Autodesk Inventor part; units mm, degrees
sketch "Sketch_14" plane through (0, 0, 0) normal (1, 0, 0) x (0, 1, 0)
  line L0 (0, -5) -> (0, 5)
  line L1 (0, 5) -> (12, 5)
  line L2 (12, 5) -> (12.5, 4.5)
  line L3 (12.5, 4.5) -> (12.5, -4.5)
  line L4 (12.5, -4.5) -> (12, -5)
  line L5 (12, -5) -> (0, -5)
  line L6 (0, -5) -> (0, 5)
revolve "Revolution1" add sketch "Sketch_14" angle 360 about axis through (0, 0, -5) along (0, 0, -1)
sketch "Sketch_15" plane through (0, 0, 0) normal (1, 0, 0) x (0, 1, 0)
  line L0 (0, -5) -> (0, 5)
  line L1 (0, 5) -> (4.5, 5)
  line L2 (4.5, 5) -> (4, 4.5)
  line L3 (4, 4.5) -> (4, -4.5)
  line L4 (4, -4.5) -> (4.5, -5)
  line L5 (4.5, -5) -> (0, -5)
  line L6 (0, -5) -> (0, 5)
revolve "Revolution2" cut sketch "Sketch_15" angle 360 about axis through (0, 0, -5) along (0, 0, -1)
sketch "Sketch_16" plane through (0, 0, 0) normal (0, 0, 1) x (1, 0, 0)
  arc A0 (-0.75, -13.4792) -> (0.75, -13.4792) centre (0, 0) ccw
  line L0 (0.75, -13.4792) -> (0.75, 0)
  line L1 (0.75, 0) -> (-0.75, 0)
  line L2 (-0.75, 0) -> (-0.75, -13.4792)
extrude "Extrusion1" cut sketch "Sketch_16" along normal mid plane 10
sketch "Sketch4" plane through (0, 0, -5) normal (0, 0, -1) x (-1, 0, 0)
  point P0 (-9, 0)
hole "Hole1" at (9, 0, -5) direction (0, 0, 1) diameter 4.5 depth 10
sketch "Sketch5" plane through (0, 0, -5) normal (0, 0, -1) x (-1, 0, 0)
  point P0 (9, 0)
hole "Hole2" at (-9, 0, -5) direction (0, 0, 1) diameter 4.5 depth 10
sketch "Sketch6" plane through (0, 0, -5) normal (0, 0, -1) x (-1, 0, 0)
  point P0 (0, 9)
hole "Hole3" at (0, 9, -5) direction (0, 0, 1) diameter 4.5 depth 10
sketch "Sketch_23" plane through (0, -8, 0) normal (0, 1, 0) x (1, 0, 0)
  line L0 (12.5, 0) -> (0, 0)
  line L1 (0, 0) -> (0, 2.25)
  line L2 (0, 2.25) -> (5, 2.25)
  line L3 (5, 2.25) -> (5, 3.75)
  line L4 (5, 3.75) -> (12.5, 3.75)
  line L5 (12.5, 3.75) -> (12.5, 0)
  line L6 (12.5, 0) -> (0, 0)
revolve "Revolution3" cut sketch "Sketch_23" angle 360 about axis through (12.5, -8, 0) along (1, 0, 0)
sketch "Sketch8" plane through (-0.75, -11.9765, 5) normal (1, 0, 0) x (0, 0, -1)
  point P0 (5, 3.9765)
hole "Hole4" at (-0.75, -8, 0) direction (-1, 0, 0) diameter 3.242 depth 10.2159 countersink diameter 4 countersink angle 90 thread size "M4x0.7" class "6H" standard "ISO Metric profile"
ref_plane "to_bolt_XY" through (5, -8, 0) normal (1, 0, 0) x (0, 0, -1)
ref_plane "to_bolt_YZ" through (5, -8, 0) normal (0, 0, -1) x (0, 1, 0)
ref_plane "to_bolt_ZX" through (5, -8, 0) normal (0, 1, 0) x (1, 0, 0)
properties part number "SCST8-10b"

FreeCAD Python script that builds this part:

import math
import FreeCAD as App
import Part
import Sketcher
from FreeCAD import Vector

doc = App.newDocument("Part")
params = doc.addObject("Spreadsheet::Sheet", "Params")
for row, (alias, value) in enumerate([
    ("sketch1_width", "12 mm"),
    ("sketch1_height", "10 mm"),
    ("sketch1_height2", "9 mm"),
    ("revolution_angle", "360 deg"),
    ("sketch2_height", "10 mm"),
    ("sketch2_height2", "9 mm"),
    ("sketch2_width", "4.5 mm"),
    ("groove_angle", "360 deg"),
    ("sketch3_radius", "13.5 mm"),
    ("sketch3_width", "1.5 mm"),
    ("pocket1_length", "10 mm"),
    ("sketch4_diameter", "4.5 mm"),
    ("hole_diameter", "4.5 mm"),
    ("hole_depth", "10 mm"),
    ("sketch5_diameter", "4.5 mm"),
    ("hole2_diameter", "4.5 mm"),
    ("hole2_depth", "10 mm"),
    ("sketch6_diameter", "4.5 mm"),
    ("hole3_diameter", "4.5 mm"),
    ("hole3_depth", "10 mm"),
    ("sketch7_width", "5 mm"),
    ("sketch7_width2", "12.5 mm"),
    ("sketch7_height", "1.5 mm"),
    ("sketch7_height2", "3.75 mm"),
    ("groove2_angle", "360 deg"),
    ("hole4_diameter", "3.242 mm"),
    ("hole4_depth", "10.2159 mm"),
    ("hole4_csink_diameter", "4 mm"),
], start=1):
    params.set(f"A{row}", alias)
    params.set(f"B{row}", "=" + value)
    params.setAlias(f"B{row}", alias)

body = doc.addObject("PartDesign::Body", "Body")

# Sketch on YZ plane
sketch1 = body.newObject("Sketcher::SketchObject", "Sketch")
sketch1.AttachmentSupport = (doc.getObject("YZ_Plane"), [""])
sketch1.MapMode = "FlatFace"
sketch1.addGeometry(Part.LineSegment(Vector(0, 5, 0), Vector(0, -5, 0)), False)
sketch1.addGeometry(Part.LineSegment(Vector(0, -5, 0), Vector(12, -5, 0)), False)
sketch1.addGeometry(Part.LineSegment(Vector(12, -5, 0), Vector(12.5, -4.5, 0)), False)
sketch1.addGeometry(Part.LineSegment(Vector(12.5, -4.5, 0), Vector(12.5, 4.5, 0)), False)
sketch1.addGeometry(Part.LineSegment(Vector(12.5, 4.5, 0), Vector(12, 5, 0)), False)
sketch1.addGeometry(Part.LineSegment(Vector(12, 5, 0), Vector(0, 5, 0)), False)
sketch1.addConstraint(Sketcher.Constraint("Coincident", 0, 2, 1, 1))
sketch1.addConstraint(Sketcher.Constraint("Coincident", 1, 2, 2, 1))
sketch1.addConstraint(Sketcher.Constraint("Coincident", 2, 2, 3, 1))
sketch1.addConstraint(Sketcher.Constraint("Coincident", 3, 2, 4, 1))
sketch1.addConstraint(Sketcher.Constraint("Coincident", 4, 2, 5, 1))
sketch1.addConstraint(Sketcher.Constraint("Coincident", 5, 2, 0, 1))
sketch1.addConstraint(Sketcher.Constraint("Vertical", 0))
sketch1.addConstraint(Sketcher.Constraint("Horizontal", 1))
sketch1.addConstraint(Sketcher.Constraint("Vertical", 3))
sketch1.addConstraint(Sketcher.Constraint("Horizontal", 5))
sketch1.addConstraint(Sketcher.Constraint("Symmetric", 0, 2, 5, 2, -1, 1))
sketch1.addConstraint(Sketcher.Constraint("Perpendicular", 2, 4))
sketch1.addConstraint(Sketcher.Constraint("Vertical", 1, 2, 4, 2))
sketch1.addConstraint(Sketcher.Constraint("Equal", 2, 4))
sketch1.addConstraint(Sketcher.Constraint("DistanceX", 1, 1, 1, 2, 12.0))
sketch1.addConstraint(Sketcher.Constraint("DistanceY", 0, 2, 0, 1, 10.0))
sketch1.addConstraint(Sketcher.Constraint("DistanceY", 3, 1, 3, 2, 9.0))
sketch1.setExpression("Constraints[14]", "Params.sketch1_width")
sketch1.setExpression("Constraints[15]", "Params.sketch1_height")
sketch1.setExpression("Constraints[16]", "Params.sketch1_height2")
revolution = body.newObject("PartDesign::Revolution", "Revolution")
revolution.Profile = sketch1
revolution.ReferenceAxis = (sketch1, ["V_Axis"])
revolution.setExpression("Angle", "Params.revolution_angle")

# Sketch on YZ plane
sketch2 = body.newObject("Sketcher::SketchObject", "Sketch001")
sketch2.AttachmentSupport = (doc.getObject("YZ_Plane"), [""])
sketch2.MapMode = "FlatFace"
sketch2.addGeometry(Part.LineSegment(Vector(0, 5, 0), Vector(0, -5, 0)), False)
sketch2.addGeometry(Part.LineSegment(Vector(0, -5, 0), Vector(4.5, -5, 0)), False)
sketch2.addGeometry(Part.LineSegment(Vector(4.5, -5, 0), Vector(4, -4.5, 0)), False)
sketch2.addGeometry(Part.LineSegment(Vector(4, -4.5, 0), Vector(4, 4.5, 0)), False)
sketch2.addGeometry(Part.LineSegment(Vector(4, 4.5, 0), Vector(4.5, 5, 0)), False)
sketch2.addGeometry(Part.LineSegment(Vector(4.5, 5, 0), Vector(0, 5, 0)), False)
sketch2.addConstraint(Sketcher.Constraint("Coincident", 0, 2, 1, 1))
sketch2.addConstraint(Sketcher.Constraint("Coincident", 1, 2, 2, 1))
sketch2.addConstraint(Sketcher.Constraint("Coincident", 2, 2, 3, 1))
sketch2.addConstraint(Sketcher.Constraint("Coincident", 3, 2, 4, 1))
sketch2.addConstraint(Sketcher.Constraint("Coincident", 4, 2, 5, 1))
sketch2.addConstraint(Sketcher.Constraint("Coincident", 5, 2, 0, 1))
sketch2.addConstraint(Sketcher.Constraint("Vertical", 0))
sketch2.addConstraint(Sketcher.Constraint("Horizontal", 1))
sketch2.addConstraint(Sketcher.Constraint("Vertical", 3))
sketch2.addConstraint(Sketcher.Constraint("Horizontal", 5))
sketch2.addConstraint(Sketcher.Constraint("Symmetric", 0, 2, 5, 2, -1, 1))
sketch2.addConstraint(Sketcher.Constraint("Perpendicular", 2, 4))
sketch2.addConstraint(Sketcher.Constraint("Vertical", 1, 2, 4, 2))
sketch2.addConstraint(Sketcher.Constraint("Equal", 2, 4))
sketch2.addConstraint(Sketcher.Constraint("DistanceY", 0, 2, 0, 1, 10.0))
sketch2.addConstraint(Sketcher.Constraint("DistanceY", 3, 1, 3, 2, 9.0))
sketch2.addConstraint(Sketcher.Constraint("DistanceX", 1, 1, 1, 2, 4.5))
sketch2.setExpression("Constraints[14]", "Params.sketch2_height")
sketch2.setExpression("Constraints[15]", "Params.sketch2_height2")
sketch2.setExpression("Constraints[16]", "Params.sketch2_width")
groove = body.newObject("PartDesign::Groove", "Groove")
groove.Profile = sketch2
groove.ReferenceAxis = (sketch2, ["V_Axis"])
groove.setExpression("Angle", "Params.groove_angle")

# Sketch on XY plane
sketch3 = body.newObject("Sketcher::SketchObject", "Sketch002")
sketch3.AttachmentSupport = (doc.getObject("XY_Plane"), [""])
sketch3.MapMode = "FlatFace"
sketch3.addGeometry(Part.LineSegment(Vector(-0.8, 0, 0), Vector(-0.8, -13.5, 0)), False)
sketch3.addGeometry(Part.ArcOfCircle(Part.Circle(Vector(0, 0, 0), Vector(0, 0, 1), 13.5), math.radians(-93.18), math.radians(-86.82)), False)
sketch3.addGeometry(Part.LineSegment(Vector(0.8, -13.5, 0), Vector(0.8, 0, 0)), False)
sketch3.addGeometry(Part.LineSegment(Vector(0.8, 0, 0), Vector(-0.8, 0, 0)), False)
sketch3.addConstraint(Sketcher.Constraint("Coincident", 0, 2, 1, 1))
sketch3.addConstraint(Sketcher.Constraint("Coincident", 1, 2, 2, 1))
sketch3.addConstraint(Sketcher.Constraint("Coincident", 2, 2, 3, 1))
sketch3.addConstraint(Sketcher.Constraint("Coincident", 3, 2, 0, 1))
sketch3.addConstraint(Sketcher.Constraint("Vertical", 0))
sketch3.addConstraint(Sketcher.Constraint("Vertical", 2))
sketch3.addConstraint(Sketcher.Constraint("Horizontal", 3))
sketch3.addConstraint(Sketcher.Constraint("Coincident", 1, 3, -1, 1))
sketch3.addConstraint(Sketcher.Constraint("Symmetric", 2, 2, 3, 2, -1, 1))
sketch3.addConstraint(Sketcher.Constraint("Radius", 1, 13.5))
sketch3.addConstraint(Sketcher.Constraint("DistanceX", 3, 2, 3, 1, 1.5))
sketch3.setExpression("Constraints[9]", "Params.sketch3_radius")
sketch3.setExpression("Constraints[10]", "Params.sketch3_width")
pocket1 = body.newObject("PartDesign::Pocket", "Pocket")
pocket1.Profile = sketch3
pocket1.setExpression("Length", "Params.pocket1_length")
pocket1.Midplane = True

# Sketch on XY plane
sketch4 = body.newObject("Sketcher::SketchObject", "Sketch003")
sketch4.AttachmentSupport = (doc.getObject("XY_Plane"), [""])
sketch4.MapMode = "FlatFace"
sketch4.AttachmentOffset = App.Placement(Vector(0, 0, -5), App.Rotation())
sketch4.addGeometry(Part.Circle(Vector(9, 0, 0), Vector(0, 0, 1), 2.2), False)
sketch4.addConstraint(Sketcher.Constraint("PointOnObject", 0, 3, -1))
sketch4.addConstraint(Sketcher.Constraint("Diameter", 0, 4.5))
sketch4.addConstraint(Sketcher.Constraint("DistanceX", -1, 1, 0, 3, 9.0))
sketch4.setExpression("Constraints[1]", "Params.sketch4_diameter")
doc.recompute()
hole = body.newObject("PartDesign::Hole", "Hole")
hole.Profile = sketch4
hole.ThreadType = "None"
hole.setExpression("Diameter", "Params.hole_diameter")
hole.DepthType = "Dimension"
hole.setExpression("Depth", "Params.hole_depth")
hole.DrillPoint = "Flat"
hole.Reversed = True

# Sketch on XY plane
sketch5 = body.newObject("Sketcher::SketchObject", "Sketch004")
sketch5.AttachmentSupport = (doc.getObject("XY_Plane"), [""])
sketch5.MapMode = "FlatFace"
sketch5.AttachmentOffset = App.Placement(Vector(0, 0, -5), App.Rotation())
sketch5.addGeometry(Part.Circle(Vector(-9, 0, 0), Vector(0, 0, 1), 2.2), False)
sketch5.addConstraint(Sketcher.Constraint("PointOnObject", 0, 3, -1))
sketch5.addConstraint(Sketcher.Constraint("Diameter", 0, 4.5))
sketch5.addConstraint(Sketcher.Constraint("DistanceX", 0, 3, -1, 1, 9.0))
sketch5.setExpression("Constraints[1]", "Params.sketch5_diameter")
doc.recompute()
hole2 = body.newObject("PartDesign::Hole", "Hole001")
hole2.Profile = sketch5
hole2.ThreadType = "None"
hole2.setExpression("Diameter", "Params.hole2_diameter")
hole2.DepthType = "Dimension"
hole2.setExpression("Depth", "Params.hole2_depth")
hole2.DrillPoint = "Flat"
hole2.Reversed = True

# Sketch on XY plane
sketch6 = body.newObject("Sketcher::SketchObject", "Sketch005")
sketch6.AttachmentSupport = (doc.getObject("XY_Plane"), [""])
sketch6.MapMode = "FlatFace"
sketch6.AttachmentOffset = App.Placement(Vector(0, 0, -5), App.Rotation())
sketch6.addGeometry(Part.Circle(Vector(0, 9, 0), Vector(0, 0, 1), 2.2), False)
sketch6.addConstraint(Sketcher.Constraint("PointOnObject", 0, 3, -2))
sketch6.addConstraint(Sketcher.Constraint("Diameter", 0, 4.5))
sketch6.addConstraint(Sketcher.Constraint("DistanceY", -1, 1, 0, 3, 9.0))
sketch6.setExpression("Constraints[1]", "Params.sketch6_diameter")
doc.recompute()
hole3 = body.newObject("PartDesign::Hole", "Hole002")
hole3.Profile = sketch6
hole3.ThreadType = "None"
hole3.setExpression("Diameter", "Params.hole3_diameter")
hole3.DepthType = "Dimension"
hole3.setExpression("Depth", "Params.hole3_depth")
hole3.DrillPoint = "Flat"
hole3.Reversed = True

# Sketch on XZ plane
sketch7 = body.newObject("Sketcher::SketchObject", "Sketch006")
sketch7.AttachmentSupport = (doc.getObject("XZ_Plane"), [""])
sketch7.MapMode = "FlatFace"
sketch7.AttachmentOffset = App.Placement(Vector(0, 0, 8), App.Rotation())
sketch7.addGeometry(Part.LineSegment(Vector(0, 0, 0), Vector(12.5, 0, 0)), False)
sketch7.addGeometry(Part.LineSegment(Vector(12.5, 0, 0), Vector(12.5, -3.8, 0)), False)
sketch7.addGeometry(Part.LineSegment(Vector(12.5, -3.8, 0), Vector(5, -3.8, 0)), False)
sketch7.addGeometry(Part.LineSegment(Vector(5, -3.8, 0), Vector(5, -2.2, 0)), False)
sketch7.addGeometry(Part.LineSegment(Vector(5, -2.2, 0), Vector(0, -2.2, 0)), False)
sketch7.addGeometry(Part.LineSegment(Vector(0, -2.2, 0), Vector(0, 0, 0)), False)
sketch7.addConstraint(Sketcher.Constraint("Coincident", 0, 2, 1, 1))
sketch7.addConstraint(Sketcher.Constraint("Coincident", 1, 2, 2, 1))
sketch7.addConstraint(Sketcher.Constraint("Coincident", 2, 2, 3, 1))
sketch7.addConstraint(Sketcher.Constraint("Coincident", 3, 2, 4, 1))
sketch7.addConstraint(Sketcher.Constraint("Coincident", 4, 2, 5, 1))
sketch7.addConstraint(Sketcher.Constraint("Coincident", 5, 2, 0, 1))
sketch7.addConstraint(Sketcher.Constraint("Horizontal", 0))
sketch7.addConstraint(Sketcher.Constraint("Vertical", 1))
sketch7.addConstraint(Sketcher.Constraint("Horizontal", 2))
sketch7.addConstraint(Sketcher.Constraint("Vertical", 3))
sketch7.addConstraint(Sketcher.Constraint("Horizontal", 4))
sketch7.addConstraint(Sketcher.Constraint("Vertical", 5))
sketch7.addConstraint(Sketcher.Constraint("Coincident", 5, 2, -1, 1))
sketch7.addConstraint(Sketcher.Constraint("DistanceX", 4, 2, 4, 1, 5.0))
sketch7.addConstraint(Sketcher.Constraint("DistanceX", 0, 1, 0, 2, 12.5))
sketch7.addConstraint(Sketcher.Constraint("DistanceY", 3, 1, 3, 2, 1.5))
sketch7.addConstraint(Sketcher.Constraint("DistanceY", 1, 2, 1, 1, 3.75))
sketch7.setExpression("Constraints[13]", "Params.sketch7_width")
sketch7.setExpression("Constraints[14]", "Params.sketch7_width2")
sketch7.setExpression("Constraints[15]", "Params.sketch7_height")
sketch7.setExpression("Constraints[16]", "Params.sketch7_height2")
groove2 = body.newObject("PartDesign::Groove", "Groove001")
groove2.Profile = sketch7
groove2.ReferenceAxis = (sketch7, ["H_Axis"])
groove2.setExpression("Angle", "Params.groove2_angle")

# Sketch on YZ plane
sketch8 = body.newObject("Sketcher::SketchObject", "Sketch007")
sketch8.AttachmentSupport = (doc.getObject("YZ_Plane"), [""])
sketch8.MapMode = "FlatFace"
sketch8.AttachmentOffset = App.Placement(Vector(0, 0, -0.75), App.Rotation())
sketch8.addGeometry(Part.Circle(Vector(-8, 0, 0), Vector(0, 0, 1), 1.6), False)
sketch8.addConstraint(Sketcher.Constraint("PointOnObject", 0, 3, -1))
sketch8.addConstraint(Sketcher.Constraint("Diameter", 0, 3.242))
sketch8.addConstraint(Sketcher.Constraint("DistanceX", 0, 3, -1, 1, 8.0))
doc.recompute()
hole4 = body.newObject("PartDesign::Hole", "Hole003")
hole4.Profile = sketch8
hole4.ThreadType = "None"
hole4.setExpression("Diameter", "Params.hole4_diameter")
hole4.DepthType = "Dimension"
hole4.setExpression("Depth", "Params.hole4_depth")
hole4.DrillPoint = "Flat"
hole4.HoleCutType = "Countersink"
hole4.setExpression("HoleCutDiameter", "Params.hole4_csink_diameter")
hole4.HoleCutCountersinkAngle = 90

doc.recompute()
